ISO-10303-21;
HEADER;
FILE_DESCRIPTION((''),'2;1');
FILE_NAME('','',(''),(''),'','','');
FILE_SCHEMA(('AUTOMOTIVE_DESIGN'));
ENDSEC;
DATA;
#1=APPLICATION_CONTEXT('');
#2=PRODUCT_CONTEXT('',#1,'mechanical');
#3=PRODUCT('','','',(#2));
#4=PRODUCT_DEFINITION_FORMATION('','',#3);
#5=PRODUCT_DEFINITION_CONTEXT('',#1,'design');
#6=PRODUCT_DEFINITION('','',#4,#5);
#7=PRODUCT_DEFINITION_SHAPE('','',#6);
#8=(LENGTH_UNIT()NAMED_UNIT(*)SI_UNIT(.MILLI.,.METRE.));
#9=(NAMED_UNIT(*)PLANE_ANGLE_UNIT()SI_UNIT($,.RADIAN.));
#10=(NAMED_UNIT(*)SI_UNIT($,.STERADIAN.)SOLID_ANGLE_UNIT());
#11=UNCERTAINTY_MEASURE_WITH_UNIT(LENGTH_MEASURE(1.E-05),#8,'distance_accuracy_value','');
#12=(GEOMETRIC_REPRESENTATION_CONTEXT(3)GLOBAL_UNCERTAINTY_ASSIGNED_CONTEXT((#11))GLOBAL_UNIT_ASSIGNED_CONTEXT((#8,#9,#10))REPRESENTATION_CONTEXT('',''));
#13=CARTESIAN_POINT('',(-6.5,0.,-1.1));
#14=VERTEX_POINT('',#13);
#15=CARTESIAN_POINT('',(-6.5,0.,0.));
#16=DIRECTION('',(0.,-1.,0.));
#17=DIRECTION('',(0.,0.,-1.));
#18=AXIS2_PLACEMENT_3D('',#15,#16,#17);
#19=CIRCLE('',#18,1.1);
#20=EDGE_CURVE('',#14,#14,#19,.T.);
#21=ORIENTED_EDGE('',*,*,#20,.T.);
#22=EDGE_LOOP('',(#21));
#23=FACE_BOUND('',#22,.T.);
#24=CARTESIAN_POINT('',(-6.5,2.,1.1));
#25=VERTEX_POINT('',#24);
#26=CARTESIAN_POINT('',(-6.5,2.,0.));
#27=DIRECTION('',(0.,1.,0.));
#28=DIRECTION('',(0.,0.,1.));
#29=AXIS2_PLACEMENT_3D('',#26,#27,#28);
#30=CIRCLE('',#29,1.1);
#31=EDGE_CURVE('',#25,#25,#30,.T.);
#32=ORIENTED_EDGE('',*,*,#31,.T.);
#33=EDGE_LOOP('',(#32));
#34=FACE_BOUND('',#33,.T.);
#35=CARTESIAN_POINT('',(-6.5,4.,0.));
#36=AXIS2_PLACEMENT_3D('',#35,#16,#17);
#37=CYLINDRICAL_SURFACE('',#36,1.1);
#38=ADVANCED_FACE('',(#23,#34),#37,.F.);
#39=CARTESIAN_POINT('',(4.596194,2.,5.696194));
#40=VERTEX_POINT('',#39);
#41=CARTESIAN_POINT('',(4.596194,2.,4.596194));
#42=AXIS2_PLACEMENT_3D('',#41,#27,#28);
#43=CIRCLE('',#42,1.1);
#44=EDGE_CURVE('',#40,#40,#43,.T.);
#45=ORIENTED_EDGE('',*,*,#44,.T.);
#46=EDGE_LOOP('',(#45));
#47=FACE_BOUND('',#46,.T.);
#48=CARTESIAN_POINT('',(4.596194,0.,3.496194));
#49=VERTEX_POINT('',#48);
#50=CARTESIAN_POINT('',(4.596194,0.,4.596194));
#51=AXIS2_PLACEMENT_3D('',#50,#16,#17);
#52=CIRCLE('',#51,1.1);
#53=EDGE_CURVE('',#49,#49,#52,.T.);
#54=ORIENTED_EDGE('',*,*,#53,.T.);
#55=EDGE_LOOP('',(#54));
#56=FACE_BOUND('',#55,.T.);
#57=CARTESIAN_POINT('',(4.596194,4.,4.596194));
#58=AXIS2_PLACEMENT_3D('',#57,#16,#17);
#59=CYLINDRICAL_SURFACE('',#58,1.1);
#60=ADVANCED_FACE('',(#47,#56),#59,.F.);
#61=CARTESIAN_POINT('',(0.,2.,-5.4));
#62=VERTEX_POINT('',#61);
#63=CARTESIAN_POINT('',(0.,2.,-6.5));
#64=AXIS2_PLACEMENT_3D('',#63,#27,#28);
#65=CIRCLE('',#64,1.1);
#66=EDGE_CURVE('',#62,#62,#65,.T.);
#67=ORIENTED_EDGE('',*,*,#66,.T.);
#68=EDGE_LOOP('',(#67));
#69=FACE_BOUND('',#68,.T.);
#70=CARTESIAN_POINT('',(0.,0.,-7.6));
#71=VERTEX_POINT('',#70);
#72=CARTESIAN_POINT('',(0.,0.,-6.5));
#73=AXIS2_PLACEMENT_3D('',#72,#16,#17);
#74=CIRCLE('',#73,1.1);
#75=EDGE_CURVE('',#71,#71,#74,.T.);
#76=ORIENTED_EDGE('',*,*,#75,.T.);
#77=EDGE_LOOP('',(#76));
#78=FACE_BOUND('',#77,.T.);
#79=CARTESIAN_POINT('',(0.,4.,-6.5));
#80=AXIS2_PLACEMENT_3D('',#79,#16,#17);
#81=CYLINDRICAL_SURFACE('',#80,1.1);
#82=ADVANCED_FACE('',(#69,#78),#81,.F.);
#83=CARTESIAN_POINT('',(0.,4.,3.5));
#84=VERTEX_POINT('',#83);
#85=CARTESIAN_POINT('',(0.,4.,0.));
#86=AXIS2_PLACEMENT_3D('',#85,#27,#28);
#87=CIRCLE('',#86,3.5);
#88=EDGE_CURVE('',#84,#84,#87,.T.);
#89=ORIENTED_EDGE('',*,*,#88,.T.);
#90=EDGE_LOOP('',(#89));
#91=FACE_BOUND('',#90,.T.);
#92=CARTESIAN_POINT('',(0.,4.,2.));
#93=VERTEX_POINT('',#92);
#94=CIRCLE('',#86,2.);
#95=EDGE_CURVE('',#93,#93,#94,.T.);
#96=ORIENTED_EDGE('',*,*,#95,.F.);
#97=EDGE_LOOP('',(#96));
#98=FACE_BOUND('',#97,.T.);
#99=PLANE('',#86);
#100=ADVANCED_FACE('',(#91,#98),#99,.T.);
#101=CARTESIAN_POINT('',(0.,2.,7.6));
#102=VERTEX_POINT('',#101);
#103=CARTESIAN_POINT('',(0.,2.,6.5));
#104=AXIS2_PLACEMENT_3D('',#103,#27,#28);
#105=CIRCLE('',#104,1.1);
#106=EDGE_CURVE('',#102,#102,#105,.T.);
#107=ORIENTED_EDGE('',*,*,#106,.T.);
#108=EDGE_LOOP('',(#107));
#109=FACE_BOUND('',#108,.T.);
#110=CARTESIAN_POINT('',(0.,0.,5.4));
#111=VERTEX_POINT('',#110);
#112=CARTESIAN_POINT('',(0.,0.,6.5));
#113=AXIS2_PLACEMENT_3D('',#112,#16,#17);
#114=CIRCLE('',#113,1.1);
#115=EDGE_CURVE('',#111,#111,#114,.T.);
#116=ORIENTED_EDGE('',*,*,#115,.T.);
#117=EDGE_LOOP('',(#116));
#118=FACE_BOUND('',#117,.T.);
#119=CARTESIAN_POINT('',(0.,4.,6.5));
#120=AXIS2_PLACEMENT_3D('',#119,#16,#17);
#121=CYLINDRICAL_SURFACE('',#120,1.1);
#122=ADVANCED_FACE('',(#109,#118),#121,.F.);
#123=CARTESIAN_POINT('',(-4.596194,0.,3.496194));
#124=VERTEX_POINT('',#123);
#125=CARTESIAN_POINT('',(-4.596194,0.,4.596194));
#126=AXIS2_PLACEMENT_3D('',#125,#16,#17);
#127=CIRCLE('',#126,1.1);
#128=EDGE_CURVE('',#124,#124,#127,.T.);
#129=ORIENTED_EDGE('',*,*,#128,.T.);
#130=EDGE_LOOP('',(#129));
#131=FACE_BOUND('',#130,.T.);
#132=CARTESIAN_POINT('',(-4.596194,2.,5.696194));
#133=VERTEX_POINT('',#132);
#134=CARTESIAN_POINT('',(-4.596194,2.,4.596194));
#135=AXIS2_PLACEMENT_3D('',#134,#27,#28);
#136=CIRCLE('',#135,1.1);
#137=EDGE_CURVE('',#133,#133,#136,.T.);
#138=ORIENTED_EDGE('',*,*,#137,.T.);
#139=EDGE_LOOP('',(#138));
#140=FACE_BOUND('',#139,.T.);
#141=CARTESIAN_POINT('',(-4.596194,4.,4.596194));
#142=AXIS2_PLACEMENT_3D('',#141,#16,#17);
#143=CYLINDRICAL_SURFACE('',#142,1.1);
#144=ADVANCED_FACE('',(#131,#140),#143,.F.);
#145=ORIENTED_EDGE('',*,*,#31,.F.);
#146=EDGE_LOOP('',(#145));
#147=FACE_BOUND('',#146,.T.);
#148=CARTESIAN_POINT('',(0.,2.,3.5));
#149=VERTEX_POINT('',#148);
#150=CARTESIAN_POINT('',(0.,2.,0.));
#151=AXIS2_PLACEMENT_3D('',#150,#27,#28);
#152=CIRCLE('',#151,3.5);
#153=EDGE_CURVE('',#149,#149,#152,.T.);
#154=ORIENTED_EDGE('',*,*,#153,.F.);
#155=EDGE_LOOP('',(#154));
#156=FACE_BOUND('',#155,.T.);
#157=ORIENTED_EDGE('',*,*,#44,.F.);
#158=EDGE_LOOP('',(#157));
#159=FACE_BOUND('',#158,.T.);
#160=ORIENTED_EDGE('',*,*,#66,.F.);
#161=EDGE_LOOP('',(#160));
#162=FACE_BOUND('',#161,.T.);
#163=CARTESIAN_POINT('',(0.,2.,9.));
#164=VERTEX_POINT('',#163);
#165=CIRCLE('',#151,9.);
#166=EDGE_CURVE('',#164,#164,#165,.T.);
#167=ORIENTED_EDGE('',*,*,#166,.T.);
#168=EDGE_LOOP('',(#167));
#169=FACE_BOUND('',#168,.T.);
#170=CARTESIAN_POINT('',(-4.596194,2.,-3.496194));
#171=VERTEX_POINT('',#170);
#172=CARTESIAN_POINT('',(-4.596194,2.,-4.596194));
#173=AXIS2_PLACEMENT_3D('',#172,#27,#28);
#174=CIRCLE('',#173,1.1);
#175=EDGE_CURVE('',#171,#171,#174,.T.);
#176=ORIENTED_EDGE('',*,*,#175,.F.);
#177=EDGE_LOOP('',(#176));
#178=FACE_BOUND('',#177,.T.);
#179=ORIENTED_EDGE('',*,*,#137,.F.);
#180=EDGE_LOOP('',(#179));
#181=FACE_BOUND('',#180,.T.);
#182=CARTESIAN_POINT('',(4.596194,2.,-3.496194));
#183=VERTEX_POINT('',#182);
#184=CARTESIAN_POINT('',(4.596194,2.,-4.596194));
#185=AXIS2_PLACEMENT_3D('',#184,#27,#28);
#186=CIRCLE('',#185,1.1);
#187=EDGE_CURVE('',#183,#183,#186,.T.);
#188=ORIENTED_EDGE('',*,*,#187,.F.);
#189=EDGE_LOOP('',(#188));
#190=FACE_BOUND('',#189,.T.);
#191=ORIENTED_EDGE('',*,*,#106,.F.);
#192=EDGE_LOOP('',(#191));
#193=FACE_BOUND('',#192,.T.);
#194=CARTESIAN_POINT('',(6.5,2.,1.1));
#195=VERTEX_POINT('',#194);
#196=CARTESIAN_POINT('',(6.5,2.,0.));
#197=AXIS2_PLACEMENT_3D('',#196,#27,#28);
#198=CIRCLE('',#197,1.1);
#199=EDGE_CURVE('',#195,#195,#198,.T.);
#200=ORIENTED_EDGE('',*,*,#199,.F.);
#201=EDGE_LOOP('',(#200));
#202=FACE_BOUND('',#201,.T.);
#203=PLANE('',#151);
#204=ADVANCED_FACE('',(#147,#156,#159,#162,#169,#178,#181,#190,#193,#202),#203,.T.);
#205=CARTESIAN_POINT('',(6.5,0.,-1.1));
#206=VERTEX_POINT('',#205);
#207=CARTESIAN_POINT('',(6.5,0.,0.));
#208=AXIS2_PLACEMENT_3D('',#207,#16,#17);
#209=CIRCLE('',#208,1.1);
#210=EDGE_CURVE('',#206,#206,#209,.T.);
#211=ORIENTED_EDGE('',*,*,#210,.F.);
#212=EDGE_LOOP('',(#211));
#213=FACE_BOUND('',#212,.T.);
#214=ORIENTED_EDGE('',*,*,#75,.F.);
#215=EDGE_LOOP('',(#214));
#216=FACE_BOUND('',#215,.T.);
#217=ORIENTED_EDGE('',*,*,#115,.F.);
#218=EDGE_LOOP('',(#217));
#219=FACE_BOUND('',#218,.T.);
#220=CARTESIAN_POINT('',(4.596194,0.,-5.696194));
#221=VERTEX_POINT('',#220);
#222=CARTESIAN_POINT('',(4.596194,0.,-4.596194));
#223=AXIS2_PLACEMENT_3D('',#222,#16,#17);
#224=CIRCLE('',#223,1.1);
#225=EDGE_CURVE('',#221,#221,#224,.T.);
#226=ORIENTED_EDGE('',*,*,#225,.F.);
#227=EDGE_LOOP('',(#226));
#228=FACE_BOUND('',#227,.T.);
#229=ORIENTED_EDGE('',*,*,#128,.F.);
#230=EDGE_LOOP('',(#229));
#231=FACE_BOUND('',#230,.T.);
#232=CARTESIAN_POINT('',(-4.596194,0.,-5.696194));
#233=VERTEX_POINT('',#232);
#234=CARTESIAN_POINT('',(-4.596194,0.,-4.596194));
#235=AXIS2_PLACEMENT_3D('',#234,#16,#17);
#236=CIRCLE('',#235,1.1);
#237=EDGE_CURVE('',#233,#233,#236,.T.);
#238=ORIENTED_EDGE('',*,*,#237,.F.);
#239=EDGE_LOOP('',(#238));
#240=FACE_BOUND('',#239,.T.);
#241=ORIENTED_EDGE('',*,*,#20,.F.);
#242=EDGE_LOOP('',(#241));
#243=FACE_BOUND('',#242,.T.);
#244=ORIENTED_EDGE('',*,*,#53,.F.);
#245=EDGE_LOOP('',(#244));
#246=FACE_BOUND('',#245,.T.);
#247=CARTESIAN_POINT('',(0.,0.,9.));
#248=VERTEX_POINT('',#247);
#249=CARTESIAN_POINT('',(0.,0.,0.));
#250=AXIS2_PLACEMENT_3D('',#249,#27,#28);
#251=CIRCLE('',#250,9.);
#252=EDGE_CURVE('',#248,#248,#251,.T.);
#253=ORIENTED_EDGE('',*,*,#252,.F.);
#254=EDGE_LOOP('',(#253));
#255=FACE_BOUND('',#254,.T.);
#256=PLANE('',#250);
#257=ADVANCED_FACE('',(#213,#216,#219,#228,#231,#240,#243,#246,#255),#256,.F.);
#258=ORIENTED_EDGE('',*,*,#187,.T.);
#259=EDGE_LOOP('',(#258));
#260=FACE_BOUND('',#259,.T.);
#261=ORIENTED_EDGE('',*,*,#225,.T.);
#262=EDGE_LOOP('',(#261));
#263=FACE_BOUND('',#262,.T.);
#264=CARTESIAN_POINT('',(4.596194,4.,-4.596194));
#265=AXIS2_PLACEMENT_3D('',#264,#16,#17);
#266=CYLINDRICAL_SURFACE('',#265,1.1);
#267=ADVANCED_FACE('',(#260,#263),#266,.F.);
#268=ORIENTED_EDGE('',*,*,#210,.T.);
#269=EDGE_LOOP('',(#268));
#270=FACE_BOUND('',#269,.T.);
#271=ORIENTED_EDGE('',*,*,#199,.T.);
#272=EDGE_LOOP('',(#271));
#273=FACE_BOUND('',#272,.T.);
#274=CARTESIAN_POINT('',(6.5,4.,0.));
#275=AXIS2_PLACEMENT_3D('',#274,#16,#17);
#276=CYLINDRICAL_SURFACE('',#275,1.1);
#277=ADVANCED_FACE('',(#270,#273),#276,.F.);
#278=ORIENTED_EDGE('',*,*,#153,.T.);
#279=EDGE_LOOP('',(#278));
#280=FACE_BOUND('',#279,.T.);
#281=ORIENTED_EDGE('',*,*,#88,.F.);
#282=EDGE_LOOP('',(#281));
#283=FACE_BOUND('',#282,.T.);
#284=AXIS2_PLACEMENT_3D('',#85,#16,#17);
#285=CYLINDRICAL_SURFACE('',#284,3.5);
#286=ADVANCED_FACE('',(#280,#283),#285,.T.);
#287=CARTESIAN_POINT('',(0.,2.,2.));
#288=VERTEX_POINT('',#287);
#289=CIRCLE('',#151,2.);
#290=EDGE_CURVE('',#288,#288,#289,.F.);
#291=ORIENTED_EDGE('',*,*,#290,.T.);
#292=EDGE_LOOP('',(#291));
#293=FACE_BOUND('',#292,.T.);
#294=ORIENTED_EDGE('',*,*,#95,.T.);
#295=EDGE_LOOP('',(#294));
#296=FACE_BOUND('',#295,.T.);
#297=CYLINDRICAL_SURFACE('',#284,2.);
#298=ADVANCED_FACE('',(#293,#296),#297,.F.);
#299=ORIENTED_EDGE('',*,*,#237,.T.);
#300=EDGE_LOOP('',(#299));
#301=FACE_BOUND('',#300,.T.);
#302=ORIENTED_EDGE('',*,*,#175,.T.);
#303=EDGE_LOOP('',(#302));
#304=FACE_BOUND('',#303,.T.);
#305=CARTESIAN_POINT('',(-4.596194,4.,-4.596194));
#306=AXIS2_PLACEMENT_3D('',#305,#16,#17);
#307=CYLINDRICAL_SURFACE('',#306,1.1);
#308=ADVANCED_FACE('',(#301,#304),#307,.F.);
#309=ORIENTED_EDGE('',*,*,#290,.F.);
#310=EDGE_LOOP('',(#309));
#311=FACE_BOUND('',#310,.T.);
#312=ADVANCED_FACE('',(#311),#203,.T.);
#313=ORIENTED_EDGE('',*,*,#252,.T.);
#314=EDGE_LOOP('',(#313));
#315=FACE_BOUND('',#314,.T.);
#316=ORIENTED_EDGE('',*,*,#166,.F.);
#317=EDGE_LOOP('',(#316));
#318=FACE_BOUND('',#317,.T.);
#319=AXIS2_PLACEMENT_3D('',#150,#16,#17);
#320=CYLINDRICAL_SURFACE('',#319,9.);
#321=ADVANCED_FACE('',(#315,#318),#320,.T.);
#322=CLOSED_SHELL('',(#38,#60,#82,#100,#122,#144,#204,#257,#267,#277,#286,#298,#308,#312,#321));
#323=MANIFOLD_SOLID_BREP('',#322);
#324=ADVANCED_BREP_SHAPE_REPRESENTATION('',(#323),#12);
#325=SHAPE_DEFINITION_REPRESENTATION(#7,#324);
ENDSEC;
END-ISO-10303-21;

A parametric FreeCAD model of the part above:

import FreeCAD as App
import Part
import Sketcher
from FreeCAD import Vector
Q = App.Units.Quantity

doc = App.newDocument("Part")
body = doc.addObject("PartDesign::Body", "Body")

# Sketch on XZ plane
sketch1 = doc.addObject("Sketcher::SketchObject", "Sketch")
body.addObject(sketch1)
sketch1.AttachmentSupport = (doc.XZ_Plane, [""])
sketch1.MapMode = "FlatFace"
sketch1.addGeometry(Part.Circle(Vector(0, 0, 0), Vector(0, 0, 1), 9), False)
sketch1.addConstraint([
    Sketcher.Constraint("Coincident", 0, 3, -1, 1),
    Sketcher.Constraint("Diameter", 0, Q("18 mm")),
])
pad1 = doc.addObject("PartDesign::Pad", "Pad")
body.addObject(pad1)
pad1.Profile = sketch1
pad1.Length = 2
pad1.Reversed = True

# Sketch on XZ plane
sketch2 = doc.addObject("Sketcher::SketchObject", "Sketch001")
body.addObject(sketch2)
sketch2.AttachmentSupport = (doc.XZ_Plane, [""])
sketch2.MapMode = "FlatFace"
sketch2.AttachmentOffset = App.Placement(Vector(0, 0, -2), App.Rotation())
sketch2.addGeometry([
    Part.Circle(Vector(0, 0, 0), Vector(0, 0, 1), 3.5),
    Part.Circle(Vector(0, 0, 0), Vector(0, 0, 1), 2),
], False)
sketch2.addConstraint([
    Sketcher.Constraint("Coincident", 0, 3, -1, 1),
    Sketcher.Constraint("Coincident", 1, 3, -1, 1),
    Sketcher.Constraint("Diameter", 0, Q("7 mm")),
    Sketcher.Constraint("Diameter", 1, Q("4 mm")),
])
pad2 = doc.addObject("PartDesign::Pad", "Pad001")
body.addObject(pad2)
pad2.Profile = sketch2
pad2.Length = 2
pad2.Reversed = True

# Sketch on XZ plane
sketch3 = doc.addObject("Sketcher::SketchObject", "Sketch002")
body.addObject(sketch3)
sketch3.AttachmentSupport = (doc.XZ_Plane, [""])
sketch3.MapMode = "FlatFace"
sketch3.addGeometry([
    Part.Circle(Vector(0, 6.5, 0), Vector(0, 0, 1), 1.1),  # 0
    Part.Circle(Vector(4.6, 4.6, 0), Vector(0, 0, 1), 1.1),  # 1
    Part.Circle(Vector(6.5, 0, 0), Vector(0, 0, 1), 1.1),  # 2
    Part.Circle(Vector(4.6, -4.6, 0), Vector(0, 0, 1), 1.1),  # 3
    Part.Circle(Vector(0, -6.5, 0), Vector(0, 0, 1), 1.1),  # 4
    Part.Circle(Vector(-4.6, -4.6, 0), Vector(0, 0, 1), 1.1),  # 5
    Part.Circle(Vector(-6.5, 0, 0), Vector(0, 0, 1), 1.1),  # 6
    Part.Circle(Vector(-4.6, 4.6, 0), Vector(0, 0, 1), 1.1),  # 7
], False)
sketch3.addConstraint([
    Sketcher.Constraint("Equal", 0, 1),
    Sketcher.Constraint("Equal", 1, 2),
    Sketcher.Constraint("Equal", 2, 3),
    Sketcher.Constraint("Equal", 3, 4),
    Sketcher.Constraint("Equal", 4, 5),
    Sketcher.Constraint("Equal", 5, 6),
    Sketcher.Constraint("Equal", 6, 7),
    Sketcher.Constraint("Symmetric", 0, 3, 4, 3, -1, 1),
    Sketcher.Constraint("Symmetric", 1, 3, 5, 3, -1, 1),
    Sketcher.Constraint("Symmetric", 2, 3, 6, 3, -1, 1),
    Sketcher.Constraint("Symmetric", 3, 3, 7, 3, -1, 1),
    Sketcher.Constraint("Symmetric", 3, 3, 5, 3, -2),
    Sketcher.Constraint("PointOnObject", 0, 3, -2),
    Sketcher.Constraint("PointOnObject", 2, 3, -1),
    Sketcher.Constraint("Diameter", 0, Q("2.2 mm")),
    Sketcher.Constraint("DistanceY", 4, 3, 0, 3, Q("13 mm")),
    Sketcher.Constraint("DistanceX", -1, 1, 2, 3, Q("6.5 mm")),
    Sketcher.Constraint("DistanceY", 3, 3, 1, 3, Q("9.192388 mm")),
    Sketcher.Constraint("DistanceX", 5, 3, 3, 3, Q("9.192388 mm")),
])
pocket1 = doc.addObject("PartDesign::Pocket", "Pocket")
body.addObject(pocket1)
pocket1.Profile = sketch3
pocket1.Type = "ThroughAll"

doc.recompute()
